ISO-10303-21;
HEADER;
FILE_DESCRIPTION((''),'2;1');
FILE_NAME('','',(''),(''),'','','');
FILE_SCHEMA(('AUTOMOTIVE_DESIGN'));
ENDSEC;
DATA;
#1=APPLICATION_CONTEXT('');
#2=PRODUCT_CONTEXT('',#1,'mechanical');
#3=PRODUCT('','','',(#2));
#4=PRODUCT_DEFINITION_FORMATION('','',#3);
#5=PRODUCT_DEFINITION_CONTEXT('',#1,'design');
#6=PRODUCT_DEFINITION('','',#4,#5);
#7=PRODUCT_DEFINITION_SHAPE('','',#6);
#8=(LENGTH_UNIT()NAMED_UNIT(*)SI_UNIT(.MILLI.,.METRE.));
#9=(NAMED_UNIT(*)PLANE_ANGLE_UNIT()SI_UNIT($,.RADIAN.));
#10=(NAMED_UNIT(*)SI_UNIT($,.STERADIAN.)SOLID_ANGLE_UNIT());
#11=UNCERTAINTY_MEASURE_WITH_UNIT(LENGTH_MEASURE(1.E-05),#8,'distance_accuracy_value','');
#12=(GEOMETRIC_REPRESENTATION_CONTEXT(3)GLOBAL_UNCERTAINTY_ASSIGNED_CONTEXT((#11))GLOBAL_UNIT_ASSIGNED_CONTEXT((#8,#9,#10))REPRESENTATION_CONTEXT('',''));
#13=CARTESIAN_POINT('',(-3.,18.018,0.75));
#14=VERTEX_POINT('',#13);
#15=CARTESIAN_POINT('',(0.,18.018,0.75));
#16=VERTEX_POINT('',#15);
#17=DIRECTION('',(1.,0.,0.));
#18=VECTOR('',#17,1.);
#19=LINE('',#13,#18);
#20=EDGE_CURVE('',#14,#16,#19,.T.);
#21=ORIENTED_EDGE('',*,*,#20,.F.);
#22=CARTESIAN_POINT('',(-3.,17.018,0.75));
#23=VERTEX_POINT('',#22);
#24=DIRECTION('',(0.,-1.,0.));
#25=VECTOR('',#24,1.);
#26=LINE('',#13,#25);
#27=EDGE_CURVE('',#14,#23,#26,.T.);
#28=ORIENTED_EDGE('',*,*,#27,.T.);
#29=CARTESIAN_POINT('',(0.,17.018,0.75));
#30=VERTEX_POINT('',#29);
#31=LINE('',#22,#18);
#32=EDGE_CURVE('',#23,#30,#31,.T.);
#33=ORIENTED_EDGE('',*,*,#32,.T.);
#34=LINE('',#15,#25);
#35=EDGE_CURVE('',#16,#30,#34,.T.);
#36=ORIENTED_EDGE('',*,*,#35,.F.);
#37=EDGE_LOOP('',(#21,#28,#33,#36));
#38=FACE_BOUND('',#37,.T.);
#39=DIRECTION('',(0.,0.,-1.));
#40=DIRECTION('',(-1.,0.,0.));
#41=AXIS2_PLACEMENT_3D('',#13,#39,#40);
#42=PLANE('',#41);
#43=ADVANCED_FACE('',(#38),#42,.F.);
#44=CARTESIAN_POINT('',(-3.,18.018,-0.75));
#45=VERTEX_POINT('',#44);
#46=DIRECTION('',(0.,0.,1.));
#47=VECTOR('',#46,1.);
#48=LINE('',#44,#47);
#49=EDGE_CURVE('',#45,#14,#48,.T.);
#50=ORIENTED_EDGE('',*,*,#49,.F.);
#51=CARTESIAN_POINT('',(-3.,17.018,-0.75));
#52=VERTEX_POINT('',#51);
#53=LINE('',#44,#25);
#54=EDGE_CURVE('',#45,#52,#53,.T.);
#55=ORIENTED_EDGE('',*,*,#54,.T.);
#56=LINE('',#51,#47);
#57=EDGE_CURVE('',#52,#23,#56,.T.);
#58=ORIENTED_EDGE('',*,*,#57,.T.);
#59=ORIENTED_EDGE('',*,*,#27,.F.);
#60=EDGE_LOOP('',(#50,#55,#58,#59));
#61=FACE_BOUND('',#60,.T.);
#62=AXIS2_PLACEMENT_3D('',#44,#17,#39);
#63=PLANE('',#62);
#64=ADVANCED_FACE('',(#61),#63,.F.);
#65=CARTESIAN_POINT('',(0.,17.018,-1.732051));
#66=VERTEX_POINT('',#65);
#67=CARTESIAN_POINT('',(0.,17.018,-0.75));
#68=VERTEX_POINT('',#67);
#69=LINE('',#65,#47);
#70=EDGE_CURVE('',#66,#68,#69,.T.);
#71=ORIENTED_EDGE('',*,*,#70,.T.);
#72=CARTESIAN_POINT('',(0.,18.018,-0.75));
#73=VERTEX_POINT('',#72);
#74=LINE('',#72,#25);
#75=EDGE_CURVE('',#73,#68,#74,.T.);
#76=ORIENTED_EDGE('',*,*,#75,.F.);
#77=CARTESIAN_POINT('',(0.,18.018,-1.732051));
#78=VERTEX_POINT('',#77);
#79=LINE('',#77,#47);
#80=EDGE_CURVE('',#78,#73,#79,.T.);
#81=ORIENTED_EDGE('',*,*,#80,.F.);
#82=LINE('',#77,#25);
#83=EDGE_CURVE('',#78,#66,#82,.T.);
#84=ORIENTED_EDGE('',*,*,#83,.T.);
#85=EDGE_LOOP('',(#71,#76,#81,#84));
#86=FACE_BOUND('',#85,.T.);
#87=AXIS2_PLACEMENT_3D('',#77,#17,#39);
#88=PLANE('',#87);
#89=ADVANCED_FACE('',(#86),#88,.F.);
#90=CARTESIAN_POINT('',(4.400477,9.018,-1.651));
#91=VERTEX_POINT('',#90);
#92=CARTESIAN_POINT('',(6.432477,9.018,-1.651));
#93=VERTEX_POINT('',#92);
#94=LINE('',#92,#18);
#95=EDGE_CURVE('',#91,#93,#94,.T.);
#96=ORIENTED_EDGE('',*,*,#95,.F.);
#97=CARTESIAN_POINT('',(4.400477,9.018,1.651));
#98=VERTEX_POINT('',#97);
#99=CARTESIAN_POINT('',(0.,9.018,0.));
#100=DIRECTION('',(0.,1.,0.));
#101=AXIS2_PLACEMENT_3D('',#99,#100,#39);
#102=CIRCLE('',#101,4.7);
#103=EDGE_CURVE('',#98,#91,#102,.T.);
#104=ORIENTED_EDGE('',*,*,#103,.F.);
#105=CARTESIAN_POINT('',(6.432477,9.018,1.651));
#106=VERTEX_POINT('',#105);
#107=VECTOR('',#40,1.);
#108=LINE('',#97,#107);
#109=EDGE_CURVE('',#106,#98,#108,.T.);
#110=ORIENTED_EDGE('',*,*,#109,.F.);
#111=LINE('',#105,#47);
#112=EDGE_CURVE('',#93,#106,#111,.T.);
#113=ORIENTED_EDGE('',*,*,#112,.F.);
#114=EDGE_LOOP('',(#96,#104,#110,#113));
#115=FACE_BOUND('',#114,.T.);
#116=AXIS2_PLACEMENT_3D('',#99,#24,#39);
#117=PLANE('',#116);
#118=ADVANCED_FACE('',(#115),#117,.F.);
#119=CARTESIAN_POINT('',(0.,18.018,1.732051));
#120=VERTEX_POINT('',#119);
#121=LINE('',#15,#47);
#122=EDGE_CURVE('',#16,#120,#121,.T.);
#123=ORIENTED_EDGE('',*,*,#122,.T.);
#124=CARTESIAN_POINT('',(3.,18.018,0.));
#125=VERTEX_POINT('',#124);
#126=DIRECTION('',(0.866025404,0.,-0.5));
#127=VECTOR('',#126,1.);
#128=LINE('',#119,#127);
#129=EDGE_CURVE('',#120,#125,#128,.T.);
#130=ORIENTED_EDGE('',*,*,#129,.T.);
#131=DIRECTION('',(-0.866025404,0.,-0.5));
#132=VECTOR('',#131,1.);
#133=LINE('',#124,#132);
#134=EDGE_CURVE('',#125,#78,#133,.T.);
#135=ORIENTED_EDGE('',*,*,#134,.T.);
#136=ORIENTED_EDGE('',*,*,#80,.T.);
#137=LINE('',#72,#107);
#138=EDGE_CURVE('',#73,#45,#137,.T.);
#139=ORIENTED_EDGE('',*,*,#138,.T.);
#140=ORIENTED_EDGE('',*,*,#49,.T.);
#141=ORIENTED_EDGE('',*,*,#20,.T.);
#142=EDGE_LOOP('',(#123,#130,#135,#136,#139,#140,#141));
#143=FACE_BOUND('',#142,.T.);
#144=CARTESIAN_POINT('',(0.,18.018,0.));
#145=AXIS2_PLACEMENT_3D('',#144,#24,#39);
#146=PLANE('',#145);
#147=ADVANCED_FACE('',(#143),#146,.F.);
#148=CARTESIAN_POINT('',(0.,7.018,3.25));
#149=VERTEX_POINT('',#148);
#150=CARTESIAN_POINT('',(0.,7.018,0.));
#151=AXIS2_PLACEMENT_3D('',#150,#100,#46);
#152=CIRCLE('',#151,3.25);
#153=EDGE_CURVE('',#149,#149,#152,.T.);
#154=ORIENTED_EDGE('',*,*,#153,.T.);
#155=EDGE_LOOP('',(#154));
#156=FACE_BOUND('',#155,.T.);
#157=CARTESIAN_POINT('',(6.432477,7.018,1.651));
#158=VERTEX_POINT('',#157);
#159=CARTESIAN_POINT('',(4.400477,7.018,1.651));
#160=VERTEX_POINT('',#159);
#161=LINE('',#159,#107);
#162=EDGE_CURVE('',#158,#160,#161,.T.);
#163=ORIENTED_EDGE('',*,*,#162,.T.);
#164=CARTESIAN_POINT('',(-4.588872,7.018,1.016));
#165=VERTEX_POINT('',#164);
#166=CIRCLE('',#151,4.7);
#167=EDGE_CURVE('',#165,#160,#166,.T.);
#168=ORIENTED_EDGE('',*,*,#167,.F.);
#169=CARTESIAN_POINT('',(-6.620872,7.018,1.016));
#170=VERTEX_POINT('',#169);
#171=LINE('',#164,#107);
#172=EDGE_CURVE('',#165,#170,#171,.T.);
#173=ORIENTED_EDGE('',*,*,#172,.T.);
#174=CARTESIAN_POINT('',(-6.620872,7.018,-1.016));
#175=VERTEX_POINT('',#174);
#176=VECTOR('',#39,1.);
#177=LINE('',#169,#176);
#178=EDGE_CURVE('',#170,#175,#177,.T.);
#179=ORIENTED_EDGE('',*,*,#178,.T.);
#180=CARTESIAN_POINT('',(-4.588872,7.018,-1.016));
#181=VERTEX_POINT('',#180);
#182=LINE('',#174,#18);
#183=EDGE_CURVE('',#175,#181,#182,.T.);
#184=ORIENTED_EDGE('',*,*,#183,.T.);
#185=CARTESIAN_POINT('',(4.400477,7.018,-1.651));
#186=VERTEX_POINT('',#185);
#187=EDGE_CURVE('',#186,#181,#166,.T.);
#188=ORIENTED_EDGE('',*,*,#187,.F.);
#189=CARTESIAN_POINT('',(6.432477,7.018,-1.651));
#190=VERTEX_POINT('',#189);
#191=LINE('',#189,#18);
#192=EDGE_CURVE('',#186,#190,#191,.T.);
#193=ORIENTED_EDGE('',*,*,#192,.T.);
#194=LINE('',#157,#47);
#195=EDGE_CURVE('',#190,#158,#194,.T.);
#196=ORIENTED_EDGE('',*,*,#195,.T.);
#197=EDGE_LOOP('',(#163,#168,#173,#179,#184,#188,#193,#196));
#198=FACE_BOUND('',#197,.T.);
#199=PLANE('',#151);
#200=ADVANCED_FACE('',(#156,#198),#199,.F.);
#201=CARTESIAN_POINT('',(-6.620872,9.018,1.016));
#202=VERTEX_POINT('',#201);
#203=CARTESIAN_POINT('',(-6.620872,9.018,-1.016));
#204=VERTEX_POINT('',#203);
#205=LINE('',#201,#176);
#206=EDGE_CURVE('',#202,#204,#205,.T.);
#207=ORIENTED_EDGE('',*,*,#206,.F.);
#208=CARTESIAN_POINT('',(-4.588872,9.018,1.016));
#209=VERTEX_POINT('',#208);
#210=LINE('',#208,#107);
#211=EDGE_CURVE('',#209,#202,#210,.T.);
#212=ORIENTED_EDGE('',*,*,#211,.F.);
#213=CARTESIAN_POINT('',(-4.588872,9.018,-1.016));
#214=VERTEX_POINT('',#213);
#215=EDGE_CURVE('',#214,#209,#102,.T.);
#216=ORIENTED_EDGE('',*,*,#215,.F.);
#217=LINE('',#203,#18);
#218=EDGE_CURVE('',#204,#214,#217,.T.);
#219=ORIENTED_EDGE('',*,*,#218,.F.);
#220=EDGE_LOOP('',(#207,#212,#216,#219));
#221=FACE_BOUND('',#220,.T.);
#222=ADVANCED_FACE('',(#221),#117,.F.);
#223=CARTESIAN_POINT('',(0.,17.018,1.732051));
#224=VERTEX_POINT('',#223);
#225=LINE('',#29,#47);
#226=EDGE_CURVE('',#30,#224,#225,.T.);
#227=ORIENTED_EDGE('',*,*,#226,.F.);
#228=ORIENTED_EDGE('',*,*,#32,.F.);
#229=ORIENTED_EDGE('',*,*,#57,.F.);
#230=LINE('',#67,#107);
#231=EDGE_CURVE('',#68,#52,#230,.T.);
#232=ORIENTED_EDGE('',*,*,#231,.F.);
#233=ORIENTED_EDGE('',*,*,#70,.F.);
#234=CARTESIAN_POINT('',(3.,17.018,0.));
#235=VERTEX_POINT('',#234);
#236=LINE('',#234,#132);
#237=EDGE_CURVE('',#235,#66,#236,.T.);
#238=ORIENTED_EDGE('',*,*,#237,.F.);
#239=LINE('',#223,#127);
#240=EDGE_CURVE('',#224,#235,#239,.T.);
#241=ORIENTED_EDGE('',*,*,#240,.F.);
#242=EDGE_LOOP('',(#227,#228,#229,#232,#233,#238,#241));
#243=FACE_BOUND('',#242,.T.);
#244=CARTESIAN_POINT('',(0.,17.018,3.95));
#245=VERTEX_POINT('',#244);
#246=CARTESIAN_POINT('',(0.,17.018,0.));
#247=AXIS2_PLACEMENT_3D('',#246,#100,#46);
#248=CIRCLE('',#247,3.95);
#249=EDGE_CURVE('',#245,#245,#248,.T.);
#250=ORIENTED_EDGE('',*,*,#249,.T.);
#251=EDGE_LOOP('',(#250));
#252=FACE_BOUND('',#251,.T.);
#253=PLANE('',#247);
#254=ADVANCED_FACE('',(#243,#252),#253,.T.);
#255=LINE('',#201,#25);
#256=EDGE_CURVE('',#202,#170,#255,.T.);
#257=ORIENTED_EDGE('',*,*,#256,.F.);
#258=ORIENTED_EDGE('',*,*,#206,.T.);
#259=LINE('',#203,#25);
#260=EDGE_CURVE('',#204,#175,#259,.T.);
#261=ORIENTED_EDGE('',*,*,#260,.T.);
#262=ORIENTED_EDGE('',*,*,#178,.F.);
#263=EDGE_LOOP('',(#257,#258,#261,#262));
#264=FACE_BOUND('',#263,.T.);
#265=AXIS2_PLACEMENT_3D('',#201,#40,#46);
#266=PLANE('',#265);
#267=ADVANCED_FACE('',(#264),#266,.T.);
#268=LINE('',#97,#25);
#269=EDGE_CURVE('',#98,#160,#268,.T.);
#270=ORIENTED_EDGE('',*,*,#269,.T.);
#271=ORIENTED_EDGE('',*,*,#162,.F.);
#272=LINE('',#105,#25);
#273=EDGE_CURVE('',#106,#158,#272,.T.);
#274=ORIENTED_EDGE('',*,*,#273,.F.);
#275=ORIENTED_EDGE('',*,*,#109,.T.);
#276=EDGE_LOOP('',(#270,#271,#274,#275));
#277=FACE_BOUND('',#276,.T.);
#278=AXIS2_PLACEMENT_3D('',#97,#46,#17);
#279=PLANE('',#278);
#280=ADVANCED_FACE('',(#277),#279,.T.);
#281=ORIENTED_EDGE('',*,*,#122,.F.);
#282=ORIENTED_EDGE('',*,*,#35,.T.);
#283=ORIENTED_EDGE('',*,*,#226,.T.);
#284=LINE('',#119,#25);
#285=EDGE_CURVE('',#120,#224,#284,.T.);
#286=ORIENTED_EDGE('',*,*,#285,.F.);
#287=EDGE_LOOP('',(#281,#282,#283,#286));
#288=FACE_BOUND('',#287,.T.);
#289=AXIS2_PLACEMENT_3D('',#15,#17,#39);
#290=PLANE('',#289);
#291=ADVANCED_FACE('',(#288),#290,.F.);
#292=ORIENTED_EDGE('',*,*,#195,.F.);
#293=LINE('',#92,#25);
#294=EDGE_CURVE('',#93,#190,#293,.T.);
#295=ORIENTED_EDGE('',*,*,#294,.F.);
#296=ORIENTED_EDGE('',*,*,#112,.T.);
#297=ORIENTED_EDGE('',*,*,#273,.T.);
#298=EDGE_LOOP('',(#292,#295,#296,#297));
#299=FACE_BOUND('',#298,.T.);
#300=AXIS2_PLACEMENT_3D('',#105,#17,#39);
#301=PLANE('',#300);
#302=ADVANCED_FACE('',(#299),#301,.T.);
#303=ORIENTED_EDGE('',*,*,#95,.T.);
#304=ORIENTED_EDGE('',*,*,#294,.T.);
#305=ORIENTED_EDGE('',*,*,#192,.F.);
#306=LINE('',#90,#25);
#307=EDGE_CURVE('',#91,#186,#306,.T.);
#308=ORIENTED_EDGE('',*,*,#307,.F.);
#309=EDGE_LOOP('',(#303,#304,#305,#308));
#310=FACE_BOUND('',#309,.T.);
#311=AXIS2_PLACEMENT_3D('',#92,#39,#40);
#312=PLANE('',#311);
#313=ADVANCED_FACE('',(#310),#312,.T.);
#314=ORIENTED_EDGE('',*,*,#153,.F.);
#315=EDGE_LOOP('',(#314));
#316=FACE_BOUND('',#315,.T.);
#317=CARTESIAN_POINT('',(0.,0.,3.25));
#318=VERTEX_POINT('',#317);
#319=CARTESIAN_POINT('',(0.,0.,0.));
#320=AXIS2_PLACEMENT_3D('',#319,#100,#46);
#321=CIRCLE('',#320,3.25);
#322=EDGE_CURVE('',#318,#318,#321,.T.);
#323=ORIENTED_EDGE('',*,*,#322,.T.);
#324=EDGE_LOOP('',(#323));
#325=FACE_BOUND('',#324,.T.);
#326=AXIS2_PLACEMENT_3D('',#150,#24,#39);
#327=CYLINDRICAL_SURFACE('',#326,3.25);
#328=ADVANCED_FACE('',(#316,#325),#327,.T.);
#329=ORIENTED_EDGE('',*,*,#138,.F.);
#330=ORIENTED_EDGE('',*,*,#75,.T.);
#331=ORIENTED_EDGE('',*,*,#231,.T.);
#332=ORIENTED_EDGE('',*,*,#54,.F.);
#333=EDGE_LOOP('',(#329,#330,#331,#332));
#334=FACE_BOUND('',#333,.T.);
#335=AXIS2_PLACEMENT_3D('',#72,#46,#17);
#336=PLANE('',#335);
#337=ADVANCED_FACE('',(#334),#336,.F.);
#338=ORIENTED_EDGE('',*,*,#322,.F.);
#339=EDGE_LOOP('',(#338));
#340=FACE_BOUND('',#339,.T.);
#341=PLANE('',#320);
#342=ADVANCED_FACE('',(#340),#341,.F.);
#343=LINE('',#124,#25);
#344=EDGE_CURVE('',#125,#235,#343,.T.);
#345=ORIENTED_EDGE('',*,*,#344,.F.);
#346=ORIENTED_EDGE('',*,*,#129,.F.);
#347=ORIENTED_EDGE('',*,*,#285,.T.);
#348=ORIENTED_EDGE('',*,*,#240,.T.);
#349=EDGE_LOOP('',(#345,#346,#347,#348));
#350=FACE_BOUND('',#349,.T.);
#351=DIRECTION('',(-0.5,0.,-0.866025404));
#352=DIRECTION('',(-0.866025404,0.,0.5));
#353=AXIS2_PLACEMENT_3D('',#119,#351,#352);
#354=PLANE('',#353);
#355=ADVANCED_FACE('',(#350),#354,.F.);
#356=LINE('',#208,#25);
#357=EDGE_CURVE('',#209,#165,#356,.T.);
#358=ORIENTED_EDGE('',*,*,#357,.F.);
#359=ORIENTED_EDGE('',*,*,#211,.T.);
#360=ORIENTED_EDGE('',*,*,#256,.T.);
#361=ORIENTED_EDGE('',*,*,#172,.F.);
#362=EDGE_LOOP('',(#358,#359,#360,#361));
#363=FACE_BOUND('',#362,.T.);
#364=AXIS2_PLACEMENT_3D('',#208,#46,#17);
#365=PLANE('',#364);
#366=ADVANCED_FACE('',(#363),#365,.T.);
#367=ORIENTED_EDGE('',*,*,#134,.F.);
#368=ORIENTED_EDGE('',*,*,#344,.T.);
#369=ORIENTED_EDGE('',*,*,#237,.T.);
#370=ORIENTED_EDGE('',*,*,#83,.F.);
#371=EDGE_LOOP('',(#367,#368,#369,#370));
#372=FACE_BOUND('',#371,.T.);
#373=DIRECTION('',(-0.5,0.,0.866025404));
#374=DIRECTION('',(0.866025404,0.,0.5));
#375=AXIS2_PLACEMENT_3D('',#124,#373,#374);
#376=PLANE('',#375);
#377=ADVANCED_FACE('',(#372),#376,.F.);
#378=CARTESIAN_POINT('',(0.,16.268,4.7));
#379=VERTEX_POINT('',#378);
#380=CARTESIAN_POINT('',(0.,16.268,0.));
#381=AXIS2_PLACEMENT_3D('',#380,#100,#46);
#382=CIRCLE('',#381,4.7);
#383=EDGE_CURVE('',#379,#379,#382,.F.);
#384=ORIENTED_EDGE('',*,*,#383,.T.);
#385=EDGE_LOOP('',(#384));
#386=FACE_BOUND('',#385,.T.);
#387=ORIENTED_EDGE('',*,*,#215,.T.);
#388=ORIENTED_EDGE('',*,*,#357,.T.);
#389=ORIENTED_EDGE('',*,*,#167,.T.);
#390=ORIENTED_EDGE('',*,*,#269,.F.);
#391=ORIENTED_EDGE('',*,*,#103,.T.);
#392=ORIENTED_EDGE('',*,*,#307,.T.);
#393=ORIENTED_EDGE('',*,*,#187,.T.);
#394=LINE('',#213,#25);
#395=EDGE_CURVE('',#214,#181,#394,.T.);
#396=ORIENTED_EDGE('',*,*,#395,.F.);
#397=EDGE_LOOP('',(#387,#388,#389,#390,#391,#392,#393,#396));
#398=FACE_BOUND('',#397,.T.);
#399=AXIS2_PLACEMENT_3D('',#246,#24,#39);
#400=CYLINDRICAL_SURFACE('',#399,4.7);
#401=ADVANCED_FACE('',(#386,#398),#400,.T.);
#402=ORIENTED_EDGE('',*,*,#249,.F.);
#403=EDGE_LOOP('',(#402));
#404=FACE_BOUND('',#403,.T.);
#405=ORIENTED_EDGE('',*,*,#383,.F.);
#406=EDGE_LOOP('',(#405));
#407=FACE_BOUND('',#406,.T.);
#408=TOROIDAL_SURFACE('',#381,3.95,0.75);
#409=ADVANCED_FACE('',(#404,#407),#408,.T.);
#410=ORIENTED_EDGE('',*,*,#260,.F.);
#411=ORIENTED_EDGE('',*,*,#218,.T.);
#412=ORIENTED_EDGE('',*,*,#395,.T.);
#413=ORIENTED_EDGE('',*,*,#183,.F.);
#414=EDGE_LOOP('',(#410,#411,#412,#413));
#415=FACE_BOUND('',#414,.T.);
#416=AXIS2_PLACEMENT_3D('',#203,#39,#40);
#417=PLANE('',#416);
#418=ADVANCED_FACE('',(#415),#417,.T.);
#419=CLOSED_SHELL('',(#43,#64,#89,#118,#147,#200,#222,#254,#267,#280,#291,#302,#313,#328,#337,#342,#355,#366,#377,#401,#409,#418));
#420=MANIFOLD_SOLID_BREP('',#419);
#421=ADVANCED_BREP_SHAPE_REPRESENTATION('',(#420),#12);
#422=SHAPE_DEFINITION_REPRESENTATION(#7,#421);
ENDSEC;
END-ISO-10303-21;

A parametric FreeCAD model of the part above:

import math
import FreeCAD as App
import Part
import Sketcher
Q = App.Units.Quantity


def edges_at(feature, points):
    """Names of the edges that pass closest to the given points."""
    edges = feature.Shape.Edges
    near = lambda p: min(range(len(edges)), key=lambda i: edges[i].distToShape(Part.Vertex(*p))[0])
    return sorted({f"Edge{near(p) + 1}" for p in points})


def add_polygon(sketch, points):
    """Adds a closed chain of lines whose ends are joined by coincident constraints."""
    first, n = sketch.GeometryCount, len(points)
    for a, b in zip(points, points[1:] + points[:1]):
        sketch.addGeometry(Part.LineSegment(App.Vector(*a, 0), App.Vector(*b, 0)), False)
    for i in range(n):
        sketch.addConstraint(Sketcher.Constraint("Coincident", first + i, 2, first + (i + 1) % n, 1))

doc = App.newDocument("Part")
body = doc.addObject("PartDesign::Body", "Body")

# Sketch on XZ plane
sketch1 = body.newObject("Sketcher::SketchObject", "Sketch")
sketch1.AttachmentSupport = (doc.getObject("XZ_Plane"), [""])
sketch1.MapMode = "FlatFace"
sketch1.addGeometry(Part.Circle(App.Vector(0, 0, 0), App.Vector(0, 0, 1), 3.2), False)
sketch1.addConstraint(Sketcher.Constraint("Coincident", 0, 3, -1, 1))
sketch1.addConstraint(Sketcher.Constraint("Diameter", 0, 6.5))
pad1 = body.newObject("PartDesign::Pad", "Pad")
pad1.Profile = sketch1
pad1.Length = 7.018
pad1.Reversed = True

# Sketch on XZ plane
sketch2 = body.newObject("Sketcher::SketchObject", "Sketch001")
sketch2.AttachmentSupport = (doc.getObject("XZ_Plane"), [""])
sketch2.MapMode = "FlatFace"
sketch2.AttachmentOffset = App.Placement(App.Vector(0, 0, -7.018), App.Rotation())
sketch2.addGeometry(Part.Circle(App.Vector(0, 0, 0), App.Vector(0, 0, 1), 4.7), False)
sketch2.addConstraint(Sketcher.Constraint("Coincident", 0, 3, -1, 1))
sketch2.addConstraint(Sketcher.Constraint("Diameter", 0, 9.4))
pad2 = body.newObject("PartDesign::Pad", "Pad001")
pad2.Profile = sketch2
pad2.Length = 10
pad2.Reversed = True
doc.recompute()

fillet = body.newObject("PartDesign::Fillet", "Fillet")
fillet.Base = (pad2, edges_at(pad2, [(-4.7, 17.018, 0)]))
fillet.Radius = 0.75

# Sketch on XZ plane
sketch3 = body.newObject("Sketcher::SketchObject", "Sketch002")
sketch3.AttachmentSupport = (doc.getObject("XZ_Plane"), [""])
sketch3.MapMode = "FlatFace"
sketch3.AttachmentOffset = App.Placement(App.Vector(0, 0, -17.018), App.Rotation())
add_polygon(sketch3, [(0, -0.8), (-3, -0.8), (-3, 0.8), (0, 0.8), (0, 1.7), (3, 0), (0, -1.7)])  # lines 0-6
sketch3.addConstraint(Sketcher.Constraint("Horizontal", 0))
sketch3.addConstraint(Sketcher.Constraint("Vertical", 1))
sketch3.addConstraint(Sketcher.Constraint("Horizontal", 2))
sketch3.addConstraint(Sketcher.Constraint("Vertical", 3))
sketch3.addConstraint(Sketcher.Constraint("Vertical", 6))
sketch3.addConstraint(Sketcher.Constraint("Symmetric", 3, 2, 5, 2, -1, 1))
sketch3.addConstraint(Sketcher.Constraint("Symmetric", 2, 2, 6, 2, -1))
sketch3.addConstraint(Sketcher.Constraint("PointOnObject", 4, 2, -1))
sketch3.addConstraint(Sketcher.Constraint("DistanceX", 0, 2, 0, 1, 3.0))
sketch3.addConstraint(Sketcher.Constraint("Angle", 4, Q("-30 deg")))
sketch3.addConstraint(Sketcher.Constraint("DistanceY", 1, 1, 1, 2, 1.5))
sketch3.addConstraint(Sketcher.Constraint("DistanceX", -1, 1, 4, 2, 3.0))
pad3 = body.newObject("PartDesign::Pad", "Pad002")
pad3.Profile = sketch3
pad3.Length = 1
pad3.Reversed = True

# Sketch on XZ plane
sketch4 = body.newObject("Sketcher::SketchObject", "Sketch003")
sketch4.AttachmentSupport = (doc.getObject("XZ_Plane"), [""])
sketch4.MapMode = "FlatFace"
sketch4.AttachmentOffset = App.Placement(App.Vector(0, 0, -7.018), App.Rotation())
sketch4.addGeometry(Part.LineSegment(App.Vector(-4.6, 1, 0), App.Vector(-6.6, 1, 0)), False)
sketch4.addGeometry(Part.LineSegment(App.Vector(-6.6, 1, 0), App.Vector(-6.6, -1, 0)), False)
sketch4.addGeometry(Part.LineSegment(App.Vector(-6.6, -1, 0), App.Vector(-4.6, -1, 0)), False)
sketch4.addGeometry(Part.ArcOfCircle(Part.Circle(App.Vector(0, 0, 0), App.Vector(0, 0, 1), 4.7), math.radians(168), math.radians(192)), False)
sketch4.addGeometry(Part.LineSegment(App.Vector(6.4, 1.7, 0), App.Vector(4.4, 1.7, 0)), False)
sketch4.addGeometry(Part.ArcOfCircle(Part.Circle(App.Vector(0, 0, 0), App.Vector(0, 0, 1), 4.7), math.radians(-21), math.radians(21)), False)
sketch4.addGeometry(Part.LineSegment(App.Vector(4.4, -1.7, 0), App.Vector(6.4, -1.7, 0)), False)
sketch4.addGeometry(Part.LineSegment(App.Vector(6.4, -1.7, 0), App.Vector(6.4, 1.7, 0)), False)
sketch4.addConstraint(Sketcher.Constraint("Coincident", 0, 2, 1, 1))
sketch4.addConstraint(Sketcher.Constraint("Coincident", 1, 2, 2, 1))
sketch4.addConstraint(Sketcher.Constraint("Coincident", 2, 2, 3, 2))
sketch4.addConstraint(Sketcher.Constraint("Coincident", 3, 1, 0, 1))
sketch4.addConstraint(Sketcher.Constraint("Coincident", 4, 2, 5, 2))
sketch4.addConstraint(Sketcher.Constraint("Coincident", 5, 1, 6, 1))
sketch4.addConstraint(Sketcher.Constraint("Coincident", 6, 2, 7, 1))
sketch4.addConstraint(Sketcher.Constraint("Coincident", 7, 2, 4, 1))
sketch4.addConstraint(Sketcher.Constraint("Horizontal", 0))
sketch4.addConstraint(Sketcher.Constraint("Vertical", 1))
sketch4.addConstraint(Sketcher.Constraint("Horizontal", 2))
sketch4.addConstraint(Sketcher.Constraint("Horizontal", 4))
sketch4.addConstraint(Sketcher.Constraint("Horizontal", 6))
sketch4.addConstraint(Sketcher.Constraint("Vertical", 7))
sketch4.addConstraint(Sketcher.Constraint("Coincident", 3, 3, -1, 1))
sketch4.addConstraint(Sketcher.Constraint("Coincident", 5, 3, -1, 1))
sketch4.addConstraint(Sketcher.Constraint("Equal", 3, 5))
sketch4.addConstraint(Sketcher.Constraint("Vertical", 2, 2, 3, 1))
sketch4.addConstraint(Sketcher.Constraint("Vertical", 4, 2, 5, 1))
sketch4.addConstraint(Sketcher.Constraint("Equal", 2, 4))
sketch4.addConstraint(Sketcher.Constraint("Equal", 6, 1))
sketch4.addConstraint(Sketcher.Constraint("Radius", 3, 4.7))
sketch4.addConstraint(Sketcher.Constraint("DistanceX", 0, 2, 0, 1, 2.032))
sketch4.addConstraint(Sketcher.Constraint("DistanceY", 7, 1, 7, 2, 3.302))
pad4 = body.newObject("PartDesign::Pad", "Pad003")
pad4.Profile = sketch4
pad4.Length = 2
pad4.Reversed = True

doc.recompute()
